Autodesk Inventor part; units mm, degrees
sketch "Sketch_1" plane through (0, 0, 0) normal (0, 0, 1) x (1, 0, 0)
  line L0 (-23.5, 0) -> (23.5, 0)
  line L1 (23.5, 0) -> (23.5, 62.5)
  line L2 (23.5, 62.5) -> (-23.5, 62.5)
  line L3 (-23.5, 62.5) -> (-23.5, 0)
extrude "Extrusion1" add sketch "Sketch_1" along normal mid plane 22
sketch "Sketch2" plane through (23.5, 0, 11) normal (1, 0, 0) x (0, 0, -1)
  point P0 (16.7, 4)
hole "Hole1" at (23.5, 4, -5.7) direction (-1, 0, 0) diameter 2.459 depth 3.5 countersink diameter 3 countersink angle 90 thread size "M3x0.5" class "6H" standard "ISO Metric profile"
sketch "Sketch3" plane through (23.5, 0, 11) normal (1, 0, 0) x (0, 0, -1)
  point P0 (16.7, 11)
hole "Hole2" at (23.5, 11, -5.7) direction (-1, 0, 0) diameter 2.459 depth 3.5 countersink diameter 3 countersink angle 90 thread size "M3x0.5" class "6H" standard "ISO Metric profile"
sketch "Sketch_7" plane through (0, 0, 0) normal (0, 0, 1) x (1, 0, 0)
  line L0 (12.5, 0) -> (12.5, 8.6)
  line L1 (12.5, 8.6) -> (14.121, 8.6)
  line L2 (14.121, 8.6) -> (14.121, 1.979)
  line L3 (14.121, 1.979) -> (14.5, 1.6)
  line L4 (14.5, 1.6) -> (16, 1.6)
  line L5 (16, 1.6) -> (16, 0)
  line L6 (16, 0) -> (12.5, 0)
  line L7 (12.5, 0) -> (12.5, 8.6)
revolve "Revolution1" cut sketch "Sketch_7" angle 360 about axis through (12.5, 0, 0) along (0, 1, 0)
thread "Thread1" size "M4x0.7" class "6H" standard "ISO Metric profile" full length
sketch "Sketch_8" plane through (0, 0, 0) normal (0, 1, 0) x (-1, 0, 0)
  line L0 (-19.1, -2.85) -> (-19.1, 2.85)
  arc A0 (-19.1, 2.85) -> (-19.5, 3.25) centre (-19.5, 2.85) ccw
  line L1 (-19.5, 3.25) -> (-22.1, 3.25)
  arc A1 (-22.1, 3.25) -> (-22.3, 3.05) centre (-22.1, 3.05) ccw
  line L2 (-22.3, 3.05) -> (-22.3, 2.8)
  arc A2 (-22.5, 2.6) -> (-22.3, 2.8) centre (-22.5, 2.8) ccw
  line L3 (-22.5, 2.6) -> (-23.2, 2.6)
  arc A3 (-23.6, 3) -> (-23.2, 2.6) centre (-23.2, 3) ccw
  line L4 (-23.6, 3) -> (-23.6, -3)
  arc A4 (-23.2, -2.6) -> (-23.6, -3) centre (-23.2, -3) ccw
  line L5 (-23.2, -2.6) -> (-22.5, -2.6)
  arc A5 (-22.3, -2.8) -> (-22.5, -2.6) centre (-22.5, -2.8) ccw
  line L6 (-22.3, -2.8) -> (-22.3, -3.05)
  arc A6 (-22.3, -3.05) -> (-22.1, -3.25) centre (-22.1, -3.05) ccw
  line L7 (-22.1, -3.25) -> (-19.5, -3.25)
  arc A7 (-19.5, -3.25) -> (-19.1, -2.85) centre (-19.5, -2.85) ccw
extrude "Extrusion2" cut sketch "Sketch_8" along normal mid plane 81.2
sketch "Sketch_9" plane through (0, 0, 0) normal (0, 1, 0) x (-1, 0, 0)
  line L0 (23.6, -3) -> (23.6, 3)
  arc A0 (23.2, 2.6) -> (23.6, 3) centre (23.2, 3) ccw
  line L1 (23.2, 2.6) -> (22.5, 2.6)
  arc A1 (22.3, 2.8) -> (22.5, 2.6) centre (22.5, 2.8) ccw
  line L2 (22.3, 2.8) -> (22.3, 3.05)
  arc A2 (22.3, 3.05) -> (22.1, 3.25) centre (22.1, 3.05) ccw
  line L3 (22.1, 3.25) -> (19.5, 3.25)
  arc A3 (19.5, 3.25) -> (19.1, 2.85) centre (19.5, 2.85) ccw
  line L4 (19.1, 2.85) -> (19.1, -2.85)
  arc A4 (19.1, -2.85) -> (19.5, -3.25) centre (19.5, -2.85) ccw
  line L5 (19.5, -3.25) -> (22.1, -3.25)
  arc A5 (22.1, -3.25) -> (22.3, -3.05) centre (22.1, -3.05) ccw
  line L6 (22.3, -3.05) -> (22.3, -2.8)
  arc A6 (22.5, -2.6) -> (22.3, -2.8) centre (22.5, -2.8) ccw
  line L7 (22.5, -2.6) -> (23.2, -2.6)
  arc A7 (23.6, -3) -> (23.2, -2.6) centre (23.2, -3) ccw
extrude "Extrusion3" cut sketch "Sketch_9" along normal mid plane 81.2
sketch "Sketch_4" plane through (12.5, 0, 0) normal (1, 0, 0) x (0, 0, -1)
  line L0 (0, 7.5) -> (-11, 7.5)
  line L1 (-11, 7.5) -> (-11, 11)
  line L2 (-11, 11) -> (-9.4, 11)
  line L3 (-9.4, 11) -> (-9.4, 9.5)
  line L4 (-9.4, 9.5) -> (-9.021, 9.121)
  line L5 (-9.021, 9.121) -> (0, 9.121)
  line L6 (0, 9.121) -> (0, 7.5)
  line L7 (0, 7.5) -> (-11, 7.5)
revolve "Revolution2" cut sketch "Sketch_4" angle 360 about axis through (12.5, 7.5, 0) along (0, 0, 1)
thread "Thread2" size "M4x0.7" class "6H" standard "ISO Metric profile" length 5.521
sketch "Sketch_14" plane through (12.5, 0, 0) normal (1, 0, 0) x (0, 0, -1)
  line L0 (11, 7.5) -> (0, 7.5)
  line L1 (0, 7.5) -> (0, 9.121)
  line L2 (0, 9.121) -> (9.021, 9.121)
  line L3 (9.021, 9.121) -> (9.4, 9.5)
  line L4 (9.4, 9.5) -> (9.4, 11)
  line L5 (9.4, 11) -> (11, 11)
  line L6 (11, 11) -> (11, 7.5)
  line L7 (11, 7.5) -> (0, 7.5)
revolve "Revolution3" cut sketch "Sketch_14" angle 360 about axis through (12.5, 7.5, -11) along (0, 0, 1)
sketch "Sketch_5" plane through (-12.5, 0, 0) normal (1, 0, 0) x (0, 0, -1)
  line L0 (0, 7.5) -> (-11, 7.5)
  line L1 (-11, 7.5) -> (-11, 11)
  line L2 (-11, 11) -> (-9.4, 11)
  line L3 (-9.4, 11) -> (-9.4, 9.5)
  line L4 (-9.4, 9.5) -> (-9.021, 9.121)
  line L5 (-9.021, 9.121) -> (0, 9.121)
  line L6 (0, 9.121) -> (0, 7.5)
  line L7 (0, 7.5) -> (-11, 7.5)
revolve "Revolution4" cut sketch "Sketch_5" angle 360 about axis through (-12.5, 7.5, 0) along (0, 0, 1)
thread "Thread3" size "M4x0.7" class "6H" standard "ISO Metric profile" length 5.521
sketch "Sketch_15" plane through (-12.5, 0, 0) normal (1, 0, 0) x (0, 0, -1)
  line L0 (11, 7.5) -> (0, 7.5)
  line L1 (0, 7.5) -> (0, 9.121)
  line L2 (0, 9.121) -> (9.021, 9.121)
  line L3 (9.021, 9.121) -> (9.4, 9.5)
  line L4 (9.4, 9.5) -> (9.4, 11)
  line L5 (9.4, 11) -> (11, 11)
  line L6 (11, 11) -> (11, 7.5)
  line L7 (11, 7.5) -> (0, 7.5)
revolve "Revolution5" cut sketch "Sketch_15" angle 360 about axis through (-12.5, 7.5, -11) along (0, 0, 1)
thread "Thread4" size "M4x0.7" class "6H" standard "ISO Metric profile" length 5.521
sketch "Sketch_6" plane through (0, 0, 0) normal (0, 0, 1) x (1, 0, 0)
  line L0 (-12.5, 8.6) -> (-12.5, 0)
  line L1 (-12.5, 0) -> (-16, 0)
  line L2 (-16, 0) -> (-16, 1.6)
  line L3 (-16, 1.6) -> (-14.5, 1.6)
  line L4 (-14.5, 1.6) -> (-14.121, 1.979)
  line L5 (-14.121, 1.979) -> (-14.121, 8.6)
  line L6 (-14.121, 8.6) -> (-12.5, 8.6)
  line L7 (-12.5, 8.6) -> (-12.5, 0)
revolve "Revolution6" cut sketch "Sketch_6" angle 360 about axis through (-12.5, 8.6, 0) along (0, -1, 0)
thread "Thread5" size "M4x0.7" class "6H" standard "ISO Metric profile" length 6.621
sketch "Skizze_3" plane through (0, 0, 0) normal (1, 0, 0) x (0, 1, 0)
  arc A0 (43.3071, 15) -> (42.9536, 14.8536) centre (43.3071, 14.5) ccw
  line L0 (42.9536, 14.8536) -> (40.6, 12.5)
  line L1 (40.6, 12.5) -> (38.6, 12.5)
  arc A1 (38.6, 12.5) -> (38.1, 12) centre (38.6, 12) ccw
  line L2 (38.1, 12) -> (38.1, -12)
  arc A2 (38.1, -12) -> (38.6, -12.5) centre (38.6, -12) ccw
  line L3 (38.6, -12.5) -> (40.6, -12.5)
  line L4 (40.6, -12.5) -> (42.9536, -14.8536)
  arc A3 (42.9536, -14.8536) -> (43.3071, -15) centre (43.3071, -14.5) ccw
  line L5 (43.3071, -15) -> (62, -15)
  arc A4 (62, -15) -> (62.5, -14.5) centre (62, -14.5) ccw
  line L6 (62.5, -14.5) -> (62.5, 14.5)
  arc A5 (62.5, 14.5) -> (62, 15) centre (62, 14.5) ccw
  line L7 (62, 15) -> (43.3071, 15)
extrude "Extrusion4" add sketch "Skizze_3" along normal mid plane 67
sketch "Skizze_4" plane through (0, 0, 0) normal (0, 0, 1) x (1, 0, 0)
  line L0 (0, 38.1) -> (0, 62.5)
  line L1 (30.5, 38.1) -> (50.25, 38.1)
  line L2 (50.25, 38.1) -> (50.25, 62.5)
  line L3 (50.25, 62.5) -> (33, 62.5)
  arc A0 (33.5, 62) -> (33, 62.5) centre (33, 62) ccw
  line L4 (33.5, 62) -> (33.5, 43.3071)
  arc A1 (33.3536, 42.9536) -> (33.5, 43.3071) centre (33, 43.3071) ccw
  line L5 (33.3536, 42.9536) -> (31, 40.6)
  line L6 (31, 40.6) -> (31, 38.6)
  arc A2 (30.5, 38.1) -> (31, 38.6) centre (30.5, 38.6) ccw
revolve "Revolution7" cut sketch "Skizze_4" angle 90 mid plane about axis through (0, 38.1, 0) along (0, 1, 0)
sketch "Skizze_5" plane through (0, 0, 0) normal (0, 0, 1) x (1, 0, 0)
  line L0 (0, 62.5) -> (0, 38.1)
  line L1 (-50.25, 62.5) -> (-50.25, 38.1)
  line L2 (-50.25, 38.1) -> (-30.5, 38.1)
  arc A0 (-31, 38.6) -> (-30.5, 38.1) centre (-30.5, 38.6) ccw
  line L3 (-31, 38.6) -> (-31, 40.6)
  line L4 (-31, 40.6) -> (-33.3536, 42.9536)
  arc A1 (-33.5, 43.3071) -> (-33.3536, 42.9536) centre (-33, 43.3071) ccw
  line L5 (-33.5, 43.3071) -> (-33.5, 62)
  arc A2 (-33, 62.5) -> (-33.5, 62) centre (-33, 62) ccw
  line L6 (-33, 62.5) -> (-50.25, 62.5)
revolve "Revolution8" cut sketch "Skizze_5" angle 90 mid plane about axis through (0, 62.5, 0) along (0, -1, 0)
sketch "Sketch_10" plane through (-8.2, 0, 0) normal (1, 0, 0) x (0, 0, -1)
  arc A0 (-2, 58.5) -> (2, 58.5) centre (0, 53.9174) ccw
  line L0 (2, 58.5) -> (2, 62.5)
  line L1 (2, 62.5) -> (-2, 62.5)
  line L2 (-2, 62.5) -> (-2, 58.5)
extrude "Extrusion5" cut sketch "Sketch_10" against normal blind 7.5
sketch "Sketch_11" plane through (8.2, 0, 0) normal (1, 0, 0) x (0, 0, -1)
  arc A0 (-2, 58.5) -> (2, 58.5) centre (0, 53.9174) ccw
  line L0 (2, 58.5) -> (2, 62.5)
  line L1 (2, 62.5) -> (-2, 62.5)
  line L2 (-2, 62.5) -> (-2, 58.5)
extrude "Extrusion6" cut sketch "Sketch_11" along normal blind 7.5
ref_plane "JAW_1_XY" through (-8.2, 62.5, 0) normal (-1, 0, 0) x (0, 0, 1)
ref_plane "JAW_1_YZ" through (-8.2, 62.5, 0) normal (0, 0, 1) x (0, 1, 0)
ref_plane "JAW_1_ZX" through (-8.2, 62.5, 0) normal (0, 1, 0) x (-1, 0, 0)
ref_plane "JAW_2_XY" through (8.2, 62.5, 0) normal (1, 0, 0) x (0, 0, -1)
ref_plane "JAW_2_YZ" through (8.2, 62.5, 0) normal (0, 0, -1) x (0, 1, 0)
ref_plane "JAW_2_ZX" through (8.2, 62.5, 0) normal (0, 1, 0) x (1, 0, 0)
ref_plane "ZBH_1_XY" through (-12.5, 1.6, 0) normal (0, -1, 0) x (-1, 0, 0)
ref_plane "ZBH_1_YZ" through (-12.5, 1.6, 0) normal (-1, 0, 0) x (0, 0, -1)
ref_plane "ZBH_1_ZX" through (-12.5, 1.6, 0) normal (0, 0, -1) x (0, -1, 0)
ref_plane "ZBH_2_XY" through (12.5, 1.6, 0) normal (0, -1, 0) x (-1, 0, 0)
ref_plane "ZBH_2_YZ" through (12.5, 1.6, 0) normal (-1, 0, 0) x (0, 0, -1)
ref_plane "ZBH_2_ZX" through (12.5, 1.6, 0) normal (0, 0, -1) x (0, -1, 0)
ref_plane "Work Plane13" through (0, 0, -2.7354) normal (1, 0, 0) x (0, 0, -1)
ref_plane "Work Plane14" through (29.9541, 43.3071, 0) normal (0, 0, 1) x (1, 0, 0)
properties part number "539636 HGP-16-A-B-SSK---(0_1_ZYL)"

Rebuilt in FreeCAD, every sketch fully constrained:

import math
import FreeCAD as App
import Part
import Sketcher
from FreeCAD import Vector
Q = App.Units.Quantity


def add_polygon(sketch, points):
    """Adds a closed chain of lines whose ends are joined by coincident constraints."""
    first, n = sketch.GeometryCount, len(points)
    for a, b in zip(points, points[1:] + points[:1]):
        sketch.addGeometry(Part.LineSegment(App.Vector(*a, 0), App.Vector(*b, 0)), False)
    for i in range(n):
        sketch.addConstraint(Sketcher.Constraint("Coincident", first + i, 2, first + (i + 1) % n, 1))

doc = App.newDocument("Part")
body = doc.addObject("PartDesign::Body", "Body")

sketch1 = body.newObject("Sketcher::SketchObject", "Sketch")
sketch1.AttachmentSupport = (doc.getObject("XY_Plane"), [""])
sketch1.MapMode = "FlatFace"
add_polygon(sketch1, [(-24, 62), (-24, 0), (24, 0), (24, 62)])
sketch1.addConstraint(Sketcher.Constraint("Vertical", 0))
sketch1.addConstraint(Sketcher.Constraint("Horizontal", 1))
sketch1.addConstraint(Sketcher.Constraint("Vertical", 2))
sketch1.addConstraint(Sketcher.Constraint("Horizontal", 3))
sketch1.addConstraint(Sketcher.Constraint("Symmetric", 0, 2, 1, 2, -1, 1))
sketch1.addConstraint(Sketcher.Constraint("DistanceX", 1, 1, 1, 2, Q("47 mm")))
sketch1.addConstraint(Sketcher.Constraint("DistanceY", 0, 2, 0, 1, Q("62.5 mm")))
pad1 = body.newObject("PartDesign::Pad", "Pad")
pad1.Profile = sketch1
pad1.Length = 22
pad1.Midplane = True

sketch2 = body.newObject("Sketcher::SketchObject", "Sketch001")
sketch2.AttachmentSupport = (doc.getObject("YZ_Plane"), [""])
sketch2.MapMode = "FlatFace"
sketch2.AttachmentOffset = App.Placement(Vector(0, 0, 23.5), App.Rotation())
sketch2.addGeometry(Part.Circle(Vector(4, -5.7, 0), Vector(0, 0, 1), 1.2), False)
sketch2.addConstraint(Sketcher.Constraint("Diameter", 0, Q("2.459 mm")))
sketch2.addConstraint(Sketcher.Constraint("DistanceX", -1, 1, 0, 3, Q("4 mm")))
sketch2.addConstraint(Sketcher.Constraint("DistanceY", 0, 3, -1, 1, Q("5.7 mm")))
doc.recompute()
hole = body.newObject("PartDesign::Hole", "Hole")
hole.Profile = sketch2
hole.ThreadType = "None"
hole.Diameter = 2.459
hole.DepthType = "Dimension"
hole.Depth = 3.5
hole.DrillPoint = "Flat"
hole.HoleCutType = "Countersink"
hole.HoleCutDiameter = 3
hole.HoleCutCountersinkAngle = 90

sketch3 = body.newObject("Sketcher::SketchObject", "Sketch002")
sketch3.AttachmentSupport = (doc.getObject("YZ_Plane"), [""])
sketch3.MapMode = "FlatFace"
sketch3.AttachmentOffset = App.Placement(Vector(0, 0, 23.5), App.Rotation())
sketch3.addGeometry(Part.Circle(Vector(11, -5.7, 0), Vector(0, 0, 1), 1.2), False)
sketch3.addConstraint(Sketcher.Constraint("Diameter", 0, Q("2.459 mm")))
sketch3.addConstraint(Sketcher.Constraint("DistanceX", -1, 1, 0, 3, Q("11 mm")))
sketch3.addConstraint(Sketcher.Constraint("DistanceY", 0, 3, -1, 1, Q("5.7 mm")))
doc.recompute()
hole2 = body.newObject("PartDesign::Hole", "Hole001")
hole2.Profile = sketch3
hole2.ThreadType = "None"
hole2.Diameter = 2.459
hole2.DepthType = "Dimension"
hole2.Depth = 3.5
hole2.DrillPoint = "Flat"
hole2.HoleCutType = "Countersink"
hole2.HoleCutDiameter = 3
hole2.HoleCutCountersinkAngle = 90

sketch4 = body.newObject("Sketcher::SketchObject", "Sketch003")
sketch4.AttachmentSupport = (doc.getObject("XY_Plane"), [""])
sketch4.MapMode = "FlatFace"
add_polygon(sketch4, [(12.5, 8.6), (12.5, 0), (16, 0), (16, 1.6), (14.5, 1.6), (14.1, 2), (14.1, 8.6)])
sketch4.addGeometry(Part.LineSegment(Vector(12.5, 0, 0), Vector(12.5, 8.6, 0)), True)
sketch4.addConstraint(Sketcher.Constraint("Vertical", 0))
sketch4.addConstraint(Sketcher.Constraint("Horizontal", 1))
sketch4.addConstraint(Sketcher.Constraint("Vertical", 2))
sketch4.addConstraint(Sketcher.Constraint("Horizontal", 3))
sketch4.addConstraint(Sketcher.Constraint("Vertical", 5))
sketch4.addConstraint(Sketcher.Constraint("Horizontal", 6))
sketch4.addConstraint(Sketcher.Constraint("Vertical", 7))
sketch4.addConstraint(Sketcher.Constraint("Coincident", 7, 1, 0, 2))
sketch4.addConstraint(Sketcher.Constraint("PointOnObject", 0, 2, -1))
sketch4.addConstraint(Sketcher.Constraint("Horizontal", 5, 2, 7, 2))
sketch4.addConstraint(Sketcher.Constraint("Angle", 4, Q("135 deg")))
sketch4.addConstraint(Sketcher.Constraint("DistanceX", 1, 1, 1, 2, Q("3.5 mm")))
sketch4.addConstraint(Sketcher.Constraint("DistanceX", 3, 2, 3, 1, Q("1.5 mm")))
sketch4.addConstraint(Sketcher.Constraint("DistanceY", 0, 2, 0, 1, Q("8.6 mm")))
sketch4.addConstraint(Sketcher.Constraint("DistanceY", 2, 1, 2, 2, Q("1.6 mm")))
sketch4.addConstraint(Sketcher.Constraint("DistanceX", -1, 1, 1, 2, Q("16 mm")))
sketch4.addConstraint(Sketcher.Constraint("DistanceX", 6, 2, 6, 1, Q("1.621 mm")))
groove = body.newObject("PartDesign::Groove", "Groove")
groove.Profile = sketch4
groove.ReferenceAxis = (sketch4, ["Axis0"])
groove.Angle = 360

sketch5 = body.newObject("Sketcher::SketchObject", "Sketch004")
sketch5.AttachmentSupport = (doc.getObject("XZ_Plane"), [""])
sketch5.MapMode = "FlatFace"
sketch5.addGeometry(Part.ArcOfCircle(Part.Circle(Vector(19.5, -2.85, 0), Vector(0, 0, 1), 0.4), math.radians(180), math.radians(270)), False)
sketch5.addGeometry(Part.LineSegment(Vector(19.1, -2.85, 0), Vector(19.1, 2.85, 0)), False)
sketch5.addGeometry(Part.ArcOfCircle(Part.Circle(Vector(19.5, 2.85, 0), Vector(0, 0, 1), 0.4), math.radians(90), math.radians(180)), False)
sketch5.addGeometry(Part.LineSegment(Vector(19.5, 3.25, 0), Vector(22.1, 3.25, 0)), False)
sketch5.addGeometry(Part.ArcOfCircle(Part.Circle(Vector(22.1, 3.05, 0), Vector(0, 0, 1), 0.2), math.radians(0), math.radians(90)), False)
sketch5.addGeometry(Part.LineSegment(Vector(22.3, 3.05, 0), Vector(22.3, 2.8, 0)), False)
sketch5.addGeometry(Part.ArcOfCircle(Part.Circle(Vector(22.5, 2.8, 0), Vector(0, 0, 1), 0.2), math.radians(180), math.radians(270)), False)
sketch5.addGeometry(Part.LineSegment(Vector(22.5, 2.6, 0), Vector(23.2, 2.6, 0)), False)
sketch5.addGeometry(Part.ArcOfCircle(Part.Circle(Vector(23.2, 3, 0), Vector(0, 0, 1), 0.4), math.radians(-90), math.radians(0)), False)
sketch5.addGeometry(Part.LineSegment(Vector(23.6, 3, 0), Vector(23.6, -3, 0)), False)
sketch5.addGeometry(Part.ArcOfCircle(Part.Circle(Vector(23.2, -3, 0), Vector(0, 0, 1), 0.4), math.radians(0), math.radians(90)), False)
sketch5.addGeometry(Part.LineSegment(Vector(23.2, -2.6, 0), Vector(22.5, -2.6, 0)), False)
sketch5.addGeometry(Part.ArcOfCircle(Part.Circle(Vector(22.5, -2.8, 0), Vector(0, 0, 1), 0.2), math.radians(90), math.radians(180)), False)
sketch5.addGeometry(Part.LineSegment(Vector(22.3, -2.8, 0), Vector(22.3, -3.05, 0)), False)
sketch5.addGeometry(Part.ArcOfCircle(Part.Circle(Vector(22.1, -3.05, 0), Vector(0, 0, 1), 0.2), math.radians(-90), math.radians(0)), False)
sketch5.addGeometry(Part.LineSegment(Vector(22.1, -3.25, 0), Vector(19.5, -3.25, 0)), False)
sketch5.addConstraint(Sketcher.Constraint("Tangent", 0, 1, 1, 1))
sketch5.addConstraint(Sketcher.Constraint("Tangent", 1, 2, 2, 2))
sketch5.addConstraint(Sketcher.Constraint("Tangent", 2, 1, 3, 1))
sketch5.addConstraint(Sketcher.Constraint("Tangent", 3, 2, 4, 2))
sketch5.addConstraint(Sketcher.Constraint("Tangent", 4, 1, 5, 1))
sketch5.addConstraint(Sketcher.Constraint("Tangent", 5, 2, 6, 1))
sketch5.addConstraint(Sketcher.Constraint("Tangent", 6, 2, 7, 1))
sketch5.addConstraint(Sketcher.Constraint("Tangent", 7, 2, 8, 1))
sketch5.addConstraint(Sketcher.Constraint("Tangent", 8, 2, 9, 1))
sketch5.addConstraint(Sketcher.Constraint("Tangent", 9, 2, 10, 1))
sketch5.addConstraint(Sketcher.Constraint("Tangent", 10, 2, 11, 1))
sketch5.addConstraint(Sketcher.Constraint("Tangent", 11, 2, 12, 1))
sketch5.addConstraint(Sketcher.Constraint("Tangent", 12, 2, 13, 1))
sketch5.addConstraint(Sketcher.Constraint("Tangent", 13, 2, 14, 2))
sketch5.addConstraint(Sketcher.Constraint("Tangent", 14, 1, 15, 1))
sketch5.addConstraint(Sketcher.Constraint("Tangent", 15, 2, 0, 2))
sketch5.addConstraint(Sketcher.Constraint("Vertical", 1))
sketch5.addConstraint(Sketcher.Constraint("Horizontal", 3))
sketch5.addConstraint(Sketcher.Constraint("Vertical", 5))
sketch5.addConstraint(Sketcher.Constraint("Horizontal", 7))
sketch5.addConstraint(Sketcher.Constraint("Vertical", 9))
sketch5.addConstraint(Sketcher.Constraint("Horizontal", 11))
sketch5.addConstraint(Sketcher.Constraint("Vertical", 13))
sketch5.addConstraint(Sketcher.Constraint("Horizontal", 15))
sketch5.addConstraint(Sketcher.Constraint("Equal", 0, 2))
sketch5.addConstraint(Sketcher.Constraint("Equal", 4, 6))
sketch5.addConstraint(Sketcher.Constraint("Equal", 2, 8))
sketch5.addConstraint(Sketcher.Constraint("Equal", 8, 10))
sketch5.addConstraint(Sketcher.Constraint("Equal", 6, 12))
sketch5.addConstraint(Sketcher.Constraint("Equal", 12, 14))
sketch5.addConstraint(Sketcher.Constraint("Symmetric", 6, 3, 12, 3, -1))
sketch5.addConstraint(Sketcher.Constraint("Equal", 5, 13))
sketch5.addConstraint(Sketcher.Constraint("Radius", 0, Q("0.4 mm")))
sketch5.addConstraint(Sketcher.Constraint("Radius", 4, Q("0.2 mm")))
sketch5.addConstraint(Sketcher.Constraint("DistanceY", 9, 2, 9, 1, Q("6 mm")))
sketch5.addConstraint(Sketcher.Constraint("DistanceX", 3, 1, 3, 2, Q("2.6 mm")))
sketch5.addConstraint(Sketcher.Constraint("DistanceX", 7, 1, 7, 2, Q("0.7 mm")))
sketch5.addConstraint(Sketcher.Constraint("DistanceY", 1, 1, 1, 2, Q("5.7 mm")))
sketch5.addConstraint(Sketcher.Constraint("DistanceX", -1, 1, 0, 3, Q("19.5 mm")))
pocket1 = body.newObject("PartDesign::Pocket", "Pocket")
pocket1.Profile = sketch5
pocket1.Length = 81.2
pocket1.Midplane = True

sketch6 = body.newObject("Sketcher::SketchObject", "Sketch005")
sketch6.AttachmentSupport = (doc.getObject("XZ_Plane"), [""])
sketch6.MapMode = "FlatFace"
sketch6.addGeometry(Part.ArcOfCircle(Part.Circle(Vector(-23.2, -3, 0), Vector(0, 0, 1), 0.4), math.radians(90), math.radians(180)), False)
sketch6.addGeometry(Part.LineSegment(Vector(-23.6, -3, 0), Vector(-23.6, 3, 0)), False)
sketch6.addGeometry(Part.ArcOfCircle(Part.Circle(Vector(-23.2, 3, 0), Vector(0, 0, 1), 0.4), math.radians(180), math.radians(270)), False)
sketch6.addGeometry(Part.LineSegment(Vector(-23.2, 2.6, 0), Vector(-22.5, 2.6, 0)), False)
sketch6.addGeometry(Part.ArcOfCircle(Part.Circle(Vector(-22.5, 2.8, 0), Vector(0, 0, 1), 0.2), math.radians(-90), math.radians(0)), False)
sketch6.addGeometry(Part.LineSegment(Vector(-22.3, 2.8, 0), Vector(-22.3, 3.05, 0)), False)
sketch6.addGeometry(Part.ArcOfCircle(Part.Circle(Vector(-22.1, 3.05, 0), Vector(0, 0, 1), 0.2), math.radians(90), math.radians(180)), False)
sketch6.addGeometry(Part.LineSegment(Vector(-22.1, 3.25, 0), Vector(-19.5, 3.25, 0)), False)
sketch6.addGeometry(Part.ArcOfCircle(Part.Circle(Vector(-19.5, 2.85, 0), Vector(0, 0, 1), 0.4), math.radians(0), math.radians(90)), False)
sketch6.addGeometry(Part.LineSegment(Vector(-19.1, 2.85, 0), Vector(-19.1, -2.85, 0)), False)
sketch6.addGeometry(Part.ArcOfCircle(Part.Circle(Vector(-19.5, -2.85, 0), Vector(0, 0, 1), 0.4), math.radians(-90), math.radians(0)), False)
sketch6.addGeometry(Part.LineSegment(Vector(-19.5, -3.25, 0), Vector(-22.1, -3.25, 0)), False)
sketch6.addGeometry(Part.ArcOfCircle(Part.Circle(Vector(-22.1, -3.05, 0), Vector(0, 0, 1), 0.2), math.radians(180), math.radians(270)), False)
sketch6.addGeometry(Part.LineSegment(Vector(-22.3, -3.05, 0), Vector(-22.3, -2.8, 0)), False)
sketch6.addGeometry(Part.ArcOfCircle(Part.Circle(Vector(-22.5, -2.8, 0), Vector(0, 0, 1), 0.2), math.radians(0), math.radians(90)), False)
sketch6.addGeometry(Part.LineSegment(Vector(-22.5, -2.6, 0), Vector(-23.2, -2.6, 0)), False)
sketch6.addConstraint(Sketcher.Constraint("Tangent", 0, 2, 1, 1))
sketch6.addConstraint(Sketcher.Constraint("Tangent", 1, 2, 2, 1))
sketch6.addConstraint(Sketcher.Constraint("Tangent", 2, 2, 3, 1))
sketch6.addConstraint(Sketcher.Constraint("Tangent", 3, 2, 4, 1))
sketch6.addConstraint(Sketcher.Constraint("Tangent", 4, 2, 5, 1))
sketch6.addConstraint(Sketcher.Constraint("Tangent", 5, 2, 6, 2))
sketch6.addConstraint(Sketcher.Constraint("Tangent", 6, 1, 7, 1))
sketch6.addConstraint(Sketcher.Constraint("Tangent", 7, 2, 8, 2))
sketch6.addConstraint(Sketcher.Constraint("Tangent", 8, 1, 9, 1))
sketch6.addConstraint(Sketcher.Constraint("Tangent", 9, 2, 10, 2))
sketch6.addConstraint(Sketcher.Constraint("Tangent", 10, 1, 11, 1))
sketch6.addConstraint(Sketcher.Constraint("Tangent", 11, 2, 12, 2))
sketch6.addConstraint(Sketcher.Constraint("Tangent", 12, 1, 13, 1))
sketch6.addConstraint(Sketcher.Constraint("Tangent", 13, 2, 14, 1))
sketch6.addConstraint(Sketcher.Constraint("Tangent", 14, 2, 15, 1))
sketch6.addConstraint(Sketcher.Constraint("Tangent", 15, 2, 0, 1))
sketch6.addConstraint(Sketcher.Constraint("Vertical", 1))
sketch6.addConstraint(Sketcher.Constraint("Horizontal", 3))
sketch6.addConstraint(Sketcher.Constraint("Vertical", 5))
sketch6.addConstraint(Sketcher.Constraint("Horizontal", 7))
sketch6.addConstraint(Sketcher.Constraint("Vertical", 9))
sketch6.addConstraint(Sketcher.Constraint("Horizontal", 11))
sketch6.addConstraint(Sketcher.Constraint("Vertical", 13))
sketch6.addConstraint(Sketcher.Constraint("Horizontal", 15))
sketch6.addConstraint(Sketcher.Constraint("Equal", 0, 2))
sketch6.addConstraint(Sketcher.Constraint("Equal", 4, 6))
sketch6.addConstraint(Sketcher.Constraint("Equal", 2, 8))
sketch6.addConstraint(Sketcher.Constraint("Equal", 8, 10))
sketch6.addConstraint(Sketcher.Constraint("Equal", 6, 12))
sketch6.addConstraint(Sketcher.Constraint("Equal", 12, 14))
sketch6.addConstraint(Sketcher.Constraint("Symmetric", 6, 3, 12, 3, -1))
sketch6.addConstraint(Sketcher.Constraint("Equal", 5, 13))
sketch6.addConstraint(Sketcher.Constraint("Radius", 0, Q("0.4 mm")))
sketch6.addConstraint(Sketcher.Constraint("Radius", 4, Q("0.2 mm")))
sketch6.addConstraint(Sketcher.Constraint("DistanceY", 1, 1, 1, 2, Q("6 mm")))
sketch6.addConstraint(Sketcher.Constraint("DistanceX", 3, 1, 3, 2, Q("0.7 mm")))
sketch6.addConstraint(Sketcher.Constraint("DistanceX", 7, 1, 7, 2, Q("2.6 mm")))
sketch6.addConstraint(Sketcher.Constraint("DistanceY", 9, 2, 9, 1, Q("5.7 mm")))
sketch6.addConstraint(Sketcher.Constraint("DistanceX", 0, 3, -1, 1, Q("23.2 mm")))
pocket2 = body.newObject("PartDesign::Pocket", "Pocket001")
pocket2.Profile = sketch6
pocket2.Length = 81.2
pocket2.Midplane = True

sketch7 = body.newObject("Sketcher::SketchObject", "Sketch006")
sketch7.AttachmentSupport = (doc.getObject("YZ_Plane"), [""])
sketch7.MapMode = "FlatFace"
sketch7.AttachmentOffset = App.Placement(Vector(0, 0, 12.5), App.Rotation())
add_polygon(sketch7, [(7.5, 11), (7.5, 0), (9.1, 0), (9.1, 9), (9.5, 9.4), (11, 9.4), (11, 11)])
sketch7.addGeometry(Part.LineSegment(Vector(7.5, 0, 0), Vector(7.5, 11, 0)), True)
sketch7.addConstraint(Sketcher.Constraint("Vertical", 0))
sketch7.addConstraint(Sketcher.Constraint("Horizontal", 1))
sketch7.addConstraint(Sketcher.Constraint("Vertical", 2))
sketch7.addConstraint(Sketcher.Constraint("Horizontal", 4))
sketch7.addConstraint(Sketcher.Constraint("Vertical", 5))
sketch7.addConstraint(Sketcher.Constraint("Horizontal", 6))
sketch7.addConstraint(Sketcher.Constraint("Vertical", 7))
sketch7.addConstraint(Sketcher.Constraint("Coincident", 7, 1, 0, 2))
sketch7.addConstraint(Sketcher.Constraint("PointOnObject", 0, 2, -1))
sketch7.addConstraint(Sketcher.Constraint("Horizontal", 5, 2, 7, 2))
sketch7.addConstraint(Sketcher.Constraint("DistanceY", 0, 2, 0, 1, Q("11 mm")))
sketch7.addConstraint(Sketcher.Constraint("Angle", 3, Q("45 deg")))
sketch7.addConstraint(Sketcher.Constraint("DistanceX", 4, 1, 4, 2, Q("1.5 mm")))
sketch7.addConstraint(Sketcher.Constraint("DistanceX", 6, 2, 6, 1, Q("3.5 mm")))
sketch7.addConstraint(Sketcher.Constraint("DistanceY", 5, 1, 5, 2, Q("1.6 mm")))
sketch7.addConstraint(Sketcher.Constraint("DistanceX", -1, 1, 4, 2, Q("11 mm")))
sketch7.addConstraint(Sketcher.Constraint("DistanceX", 1, 1, 1, 2, Q("1.621 mm")))
groove2 = body.newObject("PartDesign::Groove", "Groove001")
groove2.Profile = sketch7
groove2.ReferenceAxis = (sketch7, ["Axis0"])
groove2.Angle = 360

sketch8 = body.newObject("Sketcher::SketchObject", "Sketch007")
sketch8.AttachmentSupport = (doc.getObject("YZ_Plane"), [""])
sketch8.MapMode = "FlatFace"
sketch8.AttachmentOffset = App.Placement(Vector(0, 0, 12.5), App.Rotation())
add_polygon(sketch8, [(7.5, 0), (7.5, -11), (11, -11), (11, -9.4), (9.5, -9.4), (9.1, -9), (9.1, 0)])
sketch8.addGeometry(Part.LineSegment(Vector(7.5, -11, 0), Vector(7.5, 0, 0)), True)
sketch8.addConstraint(Sketcher.Constraint("Vertical", 0))
sketch8.addConstraint(Sketcher.Constraint("Horizontal", 1))
sketch8.addConstraint(Sketcher.Constraint("Vertical", 2))
sketch8.addConstraint(Sketcher.Constraint("Horizontal", 3))
sketch8.addConstraint(Sketcher.Constraint("Vertical", 5))
sketch8.addConstraint(Sketcher.Constraint("Horizontal", 6))
sketch8.addConstraint(Sketcher.Constraint("Vertical", 7))
sketch8.addConstraint(Sketcher.Constraint("Coincident", 7, 1, 0, 2))
sketch8.addConstraint(Sketcher.Constraint("PointOnObject", 5, 2, -1))
sketch8.addConstraint(Sketcher.Constraint("PointOnObject", 7, 2, -1))
sketch8.addConstraint(Sketcher.Constraint("DistanceY", 0, 2, 0, 1, Q("11 mm")))
sketch8.addConstraint(Sketcher.Constraint("Angle", 4, Q("135 deg")))
sketch8.addConstraint(Sketcher.Constraint("DistanceX", 1, 1, 1, 2, Q("3.5 mm")))
sketch8.addConstraint(Sketcher.Constraint("DistanceX", 3, 2, 3, 1, Q("1.5 mm")))
sketch8.addConstraint(Sketcher.Constraint("DistanceY", 2, 1, 2, 2, Q("1.6 mm")))
sketch8.addConstraint(Sketcher.Constraint("DistanceX", -1, 1, 1, 2, Q("11 mm")))
sketch8.addConstraint(Sketcher.Constraint("DistanceX", 6, 2, 6, 1, Q("1.621 mm")))
groove3 = body.newObject("PartDesign::Groove", "Groove002")
groove3.Profile = sketch8
groove3.ReferenceAxis = (sketch8, ["Axis0"])
groove3.Angle = 360

sketch9 = body.newObject("Sketcher::SketchObject", "Sketch008")
sketch9.AttachmentSupport = (doc.getObject("YZ_Plane"), [""])
sketch9.MapMode = "FlatFace"
sketch9.AttachmentOffset = App.Placement(Vector(0, 0, -12.5), App.Rotation())
add_polygon(sketch9, [(7.5, 11), (7.5, 0), (9.1, 0), (9.1, 9), (9.5, 9.4), (11, 9.4), (11, 11)])
sketch9.addGeometry(Part.LineSegment(Vector(7.5, 0, 0), Vector(7.5, 11, 0)), True)
sketch9.addConstraint(Sketcher.Constraint("Vertical", 0))
sketch9.addConstraint(Sketcher.Constraint("Horizontal", 1))
sketch9.addConstraint(Sketcher.Constraint("Vertical", 2))
sketch9.addConstraint(Sketcher.Constraint("Horizontal", 4))
sketch9.addConstraint(Sketcher.Constraint("Vertical", 5))
sketch9.addConstraint(Sketcher.Constraint("Horizontal", 6))
sketch9.addConstraint(Sketcher.Constraint("Vertical", 7))
sketch9.addConstraint(Sketcher.Constraint("Coincident", 7, 1, 0, 2))
sketch9.addConstraint(Sketcher.Constraint("PointOnObject", 0, 2, -1))
sketch9.addConstraint(Sketcher.Constraint("Horizontal", 5, 2, 7, 2))
sketch9.addConstraint(Sketcher.Constraint("DistanceY", 0, 2, 0, 1, Q("11 mm")))
sketch9.addConstraint(Sketcher.Constraint("Angle", 3, Q("45 deg")))
sketch9.addConstraint(Sketcher.Constraint("DistanceX", 4, 1, 4, 2, Q("1.5 mm")))
sketch9.addConstraint(Sketcher.Constraint("DistanceX", 6, 2, 6, 1, Q("3.5 mm")))
sketch9.addConstraint(Sketcher.Constraint("DistanceY", 5, 1, 5, 2, Q("1.6 mm")))
sketch9.addConstraint(Sketcher.Constraint("DistanceX", -1, 1, 4, 2, Q("11 mm")))
sketch9.addConstraint(Sketcher.Constraint("DistanceX", 1, 1, 1, 2, Q("1.621 mm")))
groove4 = body.newObject("PartDesign::Groove", "Groove003")
groove4.Profile = sketch9
groove4.ReferenceAxis = (sketch9, ["Axis0"])
groove4.Angle = 360

sketch10 = body.newObject("Sketcher::SketchObject", "Sketch009")
sketch10.AttachmentSupport = (doc.getObject("YZ_Plane"), [""])
sketch10.MapMode = "FlatFace"
sketch10.AttachmentOffset = App.Placement(Vector(0, 0, -12.5), App.Rotation())
add_polygon(sketch10, [(7.5, 0), (7.5, -11), (11, -11), (11, -9.4), (9.5, -9.4), (9.1, -9), (9.1, 0)])
sketch10.addGeometry(Part.LineSegment(Vector(7.5, -11, 0), Vector(7.5, 0, 0)), True)
sketch10.addConstraint(Sketcher.Constraint("Vertical", 0))
sketch10.addConstraint(Sketcher.Constraint("Horizontal", 1))
sketch10.addConstraint(Sketcher.Constraint("Vertical", 2))
sketch10.addConstraint(Sketcher.Constraint("Horizontal", 3))
sketch10.addConstraint(Sketcher.Constraint("Vertical", 5))
sketch10.addConstraint(Sketcher.Constraint("Horizontal", 6))
sketch10.addConstraint(Sketcher.Constraint("Vertical", 7))
sketch10.addConstraint(Sketcher.Constraint("Coincident", 7, 1, 0, 2))
sketch10.addConstraint(Sketcher.Constraint("PointOnObject", 5, 2, -1))
sketch10.addConstraint(Sketcher.Constraint("PointOnObject", 7, 2, -1))
sketch10.addConstraint(Sketcher.Constraint("DistanceY", 0, 2, 0, 1, Q("11 mm")))
sketch10.addConstraint(Sketcher.Constraint("Angle", 4, Q("135 deg")))
sketch10.addConstraint(Sketcher.Constraint("DistanceX", 1, 1, 1, 2, Q("3.5 mm")))
sketch10.addConstraint(Sketcher.Constraint("DistanceX", 3, 2, 3, 1, Q("1.5 mm")))
sketch10.addConstraint(Sketcher.Constraint("DistanceY", 2, 1, 2, 2, Q("1.6 mm")))
sketch10.addConstraint(Sketcher.Constraint("DistanceX", -1, 1, 1, 2, Q("11 mm")))
sketch10.addConstraint(Sketcher.Constraint("DistanceX", 6, 2, 6, 1, Q("1.621 mm")))
groove5 = body.newObject("PartDesign::Groove", "Groove004")
groove5.Profile = sketch10
groove5.ReferenceAxis = (sketch10, ["Axis0"])
groove5.Angle = 360

sketch11 = body.newObject("Sketcher::SketchObject", "Sketch010")
sketch11.AttachmentSupport = (doc.getObject("XY_Plane"), [""])
sketch11.MapMode = "FlatFace"
add_polygon(sketch11, [(-12.5, 0), (-12.5, 8.6), (-14.1, 8.6), (-14.1, 2), (-14.5, 1.6), (-16, 1.6), (-16, 0)])
sketch11.addGeometry(Part.LineSegment(Vector(-12.5, 8.6, 0), Vector(-12.5, 0, 0)), True)
sketch11.addConstraint(Sketcher.Constraint("Vertical", 0))
sketch11.addConstraint(Sketcher.Constraint("Horizontal", 1))
sketch11.addConstraint(Sketcher.Constraint("Vertical", 2))
sketch11.addConstraint(Sketcher.Constraint("Horizontal", 4))
sketch11.addConstraint(Sketcher.Constraint("Vertical", 5))
sketch11.addConstraint(Sketcher.Constraint("Horizontal", 6))
sketch11.addConstraint(Sketcher.Constraint("Vertical", 7))
sketch11.addConstraint(Sketcher.Constraint("Coincident", 7, 1, 0, 2))
sketch11.addConstraint(Sketcher.Constraint("PointOnObject", 5, 2, -1))
sketch11.addConstraint(Sketcher.Constraint("PointOnObject", 7, 2, -1))
sketch11.addConstraint(Sketcher.Constraint("Angle", 3, Q("-135 deg")))
sketch11.addConstraint(Sketcher.Constraint("DistanceX", 4, 2, 4, 1, Q("1.5 mm")))
sketch11.addConstraint(Sketcher.Constraint("DistanceX", 6, 1, 6, 2, Q("3.5 mm")))
sketch11.addConstraint(Sketcher.Constraint("DistanceY", 0, 1, 0, 2, Q("8.6 mm")))
sketch11.addConstraint(Sketcher.Constraint("DistanceY", 5, 2, 5, 1, Q("1.6 mm")))
sketch11.addConstraint(Sketcher.Constraint("DistanceX", 4, 2, -1, 1, Q("16 mm")))
sketch11.addConstraint(Sketcher.Constraint("DistanceX", 1, 2, 1, 1, Q("1.621 mm")))
groove6 = body.newObject("PartDesign::Groove", "Groove005")
groove6.Profile = sketch11
groove6.ReferenceAxis = (sketch11, ["Axis0"])
groove6.Angle = 360

sketch12 = body.newObject("Sketcher::SketchObject", "Sketch011")
sketch12.AttachmentSupport = (doc.getObject("YZ_Plane"), [""])
sketch12.MapMode = "FlatFace"
sketch12.addGeometry(Part.LineSegment(Vector(62, 15, 0), Vector(43.31, 15, 0)), False)
sketch12.addGeometry(Part.ArcOfCircle(Part.Circle(Vector(43.31, 14.5, 0), Vector(0, 0, 1), 0.5), math.radians(90), math.radians(135)), False)
sketch12.addGeometry(Part.LineSegment(Vector(42.95, 14.85, 0), Vector(40.6, 12.5, 0)), False)
sketch12.addGeometry(Part.LineSegment(Vector(40.6, 12.5, 0), Vector(38.6, 12.5, 0)), False)
sketch12.addGeometry(Part.ArcOfCircle(Part.Circle(Vector(38.6, 12, 0), Vector(0, 0, 1), 0.5), math.radians(90), math.radians(180)), False)
sketch12.addGeometry(Part.LineSegment(Vector(38.1, 12, 0), Vector(38.1, -12, 0)), False)
sketch12.addGeometry(Part.ArcOfCircle(Part.Circle(Vector(38.6, -12, 0), Vector(0, 0, 1), 0.5), math.radians(180), math.radians(270)), False)
sketch12.addGeometry(Part.LineSegment(Vector(38.6, -12.5, 0), Vector(40.6, -12.5, 0)), False)
sketch12.addGeometry(Part.LineSegment(Vector(40.6, -12.5, 0), Vector(42.95, -14.85, 0)), False)
sketch12.addGeometry(Part.ArcOfCircle(Part.Circle(Vector(43.31, -14.5, 0), Vector(0, 0, 1), 0.5), math.radians(-135), math.radians(-90)), False)
sketch12.addGeometry(Part.LineSegment(Vector(43.31, -15, 0), Vector(62, -15, 0)), False)
sketch12.addGeometry(Part.ArcOfCircle(Part.Circle(Vector(62, -14.5, 0), Vector(0, 0, 1), 0.5), math.radians(-90), math.radians(0)), False)
sketch12.addGeometry(Part.LineSegment(Vector(62.5, -14.5, 0), Vector(62.5, 14.5, 0)), False)
sketch12.addGeometry(Part.ArcOfCircle(Part.Circle(Vector(62, 14.5, 0), Vector(0, 0, 1), 0.5), math.radians(0), math.radians(90)), False)
sketch12.addConstraint(Sketcher.Constraint("Tangent", 0, 2, 1, 1))
sketch12.addConstraint(Sketcher.Constraint("Tangent", 1, 2, 2, 1))
sketch12.addConstraint(Sketcher.Constraint("Coincident", 2, 2, 3, 1))
sketch12.addConstraint(Sketcher.Constraint("Tangent", 3, 2, 4, 1))
sketch12.addConstraint(Sketcher.Constraint("Tangent", 4, 2, 5, 1))
sketch12.addConstraint(Sketcher.Constraint("Tangent", 5, 2, 6, 1))
sketch12.addConstraint(Sketcher.Constraint("Tangent", 6, 2, 7, 1))
sketch12.addConstraint(Sketcher.Constraint("Coincident", 7, 2, 8, 1))
sketch12.addConstraint(Sketcher.Constraint("Tangent", 8, 2, 9, 1))
sketch12.addConstraint(Sketcher.Constraint("Tangent", 9, 2, 10, 1))
sketch12.addConstraint(Sketcher.Constraint("Tangent", 10, 2, 11, 1))
sketch12.addConstraint(Sketcher.Constraint("Tangent", 11, 2, 12, 1))
sketch12.addConstraint(Sketcher.Constraint("Tangent", 12, 2, 13, 1))
sketch12.addConstraint(Sketcher.Constraint("Tangent", 13, 2, 0, 1))
sketch12.addConstraint(Sketcher.Constraint("Horizontal", 0))
sketch12.addConstraint(Sketcher.Constraint("Horizontal", 3))
sketch12.addConstraint(Sketcher.Constraint("Vertical", 5))
sketch12.addConstraint(Sketcher.Constraint("Horizontal", 7))
sketch12.addConstraint(Sketcher.Constraint("Horizontal", 10))
sketch12.addConstraint(Sketcher.Constraint("Vertical", 12))
sketch12.addConstraint(Sketcher.Constraint("Equal", 1, 4))
sketch12.addConstraint(Sketcher.Constraint("Equal", 4, 6))
sketch12.addConstraint(Sketcher.Constraint("Equal", 6, 9))
sketch12.addConstraint(Sketcher.Constraint("Equal", 9, 11))
sketch12.addConstraint(Sketcher.Constraint("Equal", 11, 13))
sketch12.addConstraint(Sketcher.Constraint("Symmetric", 1, 3, 9, 3, -1))
sketch12.addConstraint(Sketcher.Constraint("Symmetric", 2, 2, 7, 2, -1))
sketch12.addConstraint(Sketcher.Constraint("Perpendicular", 2, 8))
sketch12.addConstraint(Sketcher.Constraint("Radius", 1, Q("0.5 mm")))
sketch12.addConstraint(Sketcher.Constraint("DistanceX", 3, 2, 3, 1, Q("2 mm")))
sketch12.addConstraint(Sketcher.Constraint("DistanceY", 5, 2, 5, 1, Q("24 mm")))
sketch12.addConstraint(Sketcher.Constraint("DistanceY", 12, 1, 12, 2, Q("29 mm")))
sketch12.addConstraint(Sketcher.Constraint("DistanceX", -1, 1, 11, 3, Q("62 mm")))
sketch12.addConstraint(Sketcher.Constraint("DistanceX", -1, 1, 4, 3, Q("38.6 mm")))
pad2 = body.newObject("PartDesign::Pad", "Pad001")
pad2.Profile = sketch12
pad2.Length = 67
pad2.Midplane = True

sketch13 = body.newObject("Sketcher::SketchObject", "Sketch012")
sketch13.AttachmentSupport = (doc.getObject("XY_Plane"), [""])
sketch13.MapMode = "FlatFace"
sketch13.addGeometry(Part.ArcOfCircle(Part.Circle(Vector(30.5, 38.6, 0), Vector(0, 0, 1), 0.5), math.radians(-90), math.radians(0)), False)
sketch13.addGeometry(Part.LineSegment(Vector(30.5, 38.1, 0), Vector(50.25, 38.1, 0)), False)
sketch13.addGeometry(Part.LineSegment(Vector(50.25, 38.1, 0), Vector(50.25, 62.5, 0)), False)
sketch13.addGeometry(Part.LineSegment(Vector(50.25, 62.5, 0), Vector(33, 62.5, 0)), False)
sketch13.addGeometry(Part.ArcOfCircle(Part.Circle(Vector(33, 62, 0), Vector(0, 0, 1), 0.5), math.radians(0), math.radians(90)), False)
sketch13.addGeometry(Part.LineSegment(Vector(33.5, 62, 0), Vector(33.5, 43.31, 0)), False)
sketch13.addGeometry(Part.ArcOfCircle(Part.Circle(Vector(33, 43.31, 0), Vector(0, 0, 1), 0.5), math.radians(-45), math.radians(0)), False)
sketch13.addGeometry(Part.LineSegment(Vector(33.35, 42.95, 0), Vector(31, 40.6, 0)), False)
sketch13.addGeometry(Part.LineSegment(Vector(31, 40.6, 0), Vector(31, 38.6, 0)), False)
sketch13.addConstraint(Sketcher.Constraint("Tangent", 0, 1, 1, 1))
sketch13.addConstraint(Sketcher.Constraint("Coincident", 1, 2, 2, 1))
sketch13.addConstraint(Sketcher.Constraint("Coincident", 2, 2, 3, 1))
sketch13.addConstraint(Sketcher.Constraint("Tangent", 3, 2, 4, 2))
sketch13.addConstraint(Sketcher.Constraint("Tangent", 4, 1, 5, 1))
sketch13.addConstraint(Sketcher.Constraint("Tangent", 5, 2, 6, 2))
sketch13.addConstraint(Sketcher.Constraint("Tangent", 6, 1, 7, 1))
sketch13.addConstraint(Sketcher.Constraint("Coincident", 7, 2, 8, 1))
sketch13.addConstraint(Sketcher.Constraint("Tangent", 8, 2, 0, 2))
sketch13.addConstraint(Sketcher.Constraint("Horizontal", 1))
sketch13.addConstraint(Sketcher.Constraint("Vertical", 2))
sketch13.addConstraint(Sketcher.Constraint("Horizontal", 3))
sketch13.addConstraint(Sketcher.Constraint("Vertical", 5))
sketch13.addConstraint(Sketcher.Constraint("Vertical", 8))
sketch13.addConstraint(Sketcher.Constraint("Equal", 0, 4))
sketch13.addConstraint(Sketcher.Constraint("Equal", 4, 6))
sketch13.addConstraint(Sketcher.Constraint("Radius", 0, Q("0.5 mm")))
sketch13.addConstraint(Sketcher.Constraint("DistanceY", 8, 2, 8, 1, Q("2 mm")))
sketch13.addConstraint(Sketcher.Constraint("Angle", 7, Q("-135 deg")))
sketch13.addConstraint(Sketcher.Constraint("DistanceY", 2, 1, 2, 2, Q("24.4 mm")))
sketch13.addConstraint(Sketcher.Constraint("DistanceX", -1, 1, 4, 3, Q("33 mm")))
sketch13.addConstraint(Sketcher.Constraint("DistanceY", -1, 1, 4, 3, Q("62 mm")))
sketch13.addConstraint(Sketcher.Constraint("DistanceX", -1, 1, 7, 2, Q("31 mm")))
sketch13.addConstraint(Sketcher.Constraint("DistanceX", 1, 1, 1, 2, Q("19.75 mm")))
groove7 = body.newObject("PartDesign::Groove", "Groove006")
groove7.Profile = sketch13
groove7.ReferenceAxis = (sketch13, ["V_Axis"])
groove7.Angle = 90
groove7.Midplane = True

sketch14 = body.newObject("Sketcher::SketchObject", "Sketch013")
sketch14.AttachmentSupport = (doc.getObject("XY_Plane"), [""])
sketch14.MapMode = "FlatFace"
sketch14.addGeometry(Part.LineSegment(Vector(-33, 62.5, 0), Vector(-50.25, 62.5, 0)), False)
sketch14.addGeometry(Part.LineSegment(Vector(-50.25, 62.5, 0), Vector(-50.25, 38.1, 0)), False)
sketch14.addGeometry(Part.LineSegment(Vector(-50.25, 38.1, 0), Vector(-30.5, 38.1, 0)), False)
sketch14.addGeometry(Part.ArcOfCircle(Part.Circle(Vector(-30.5, 38.6, 0), Vector(0, 0, 1), 0.5), math.radians(180), math.radians(270)), False)
sketch14.addGeometry(Part.LineSegment(Vector(-31, 38.6, 0), Vector(-31, 40.6, 0)), False)
sketch14.addGeometry(Part.LineSegment(Vector(-31, 40.6, 0), Vector(-33.35, 42.95, 0)), False)
sketch14.addGeometry(Part.ArcOfCircle(Part.Circle(Vector(-33, 43.31, 0), Vector(0, 0, 1), 0.5), math.radians(180), math.radians(225)), False)
sketch14.addGeometry(Part.LineSegment(Vector(-33.5, 43.31, 0), Vector(-33.5, 62, 0)), False)
sketch14.addGeometry(Part.ArcOfCircle(Part.Circle(Vector(-33, 62, 0), Vector(0, 0, 1), 0.5), math.radians(90), math.radians(180)), False)
sketch14.addConstraint(Sketcher.Constraint("Coincident", 0, 2, 1, 1))
sketch14.addConstraint(Sketcher.Constraint("Coincident", 1, 2, 2, 1))
sketch14.addConstraint(Sketcher.Constraint("Tangent", 2, 2, 3, 2))
sketch14.addConstraint(Sketcher.Constraint("Tangent", 3, 1, 4, 1))
sketch14.addConstraint(Sketcher.Constraint("Coincident", 4, 2, 5, 1))
sketch14.addConstraint(Sketcher.Constraint("Tangent", 5, 2, 6, 2))
sketch14.addConstraint(Sketcher.Constraint("Tangent", 6, 1, 7, 1))
sketch14.addConstraint(Sketcher.Constraint("Tangent", 7, 2, 8, 2))
sketch14.addConstraint(Sketcher.Constraint("Tangent", 8, 1, 0, 1))
sketch14.addConstraint(Sketcher.Constraint("Horizontal", 0))
sketch14.addConstraint(Sketcher.Constraint("Vertical", 1))
sketch14.addConstraint(Sketcher.Constraint("Horizontal", 2))
sketch14.addConstraint(Sketcher.Constraint("Vertical", 4))
sketch14.addConstraint(Sketcher.Constraint("Vertical", 7))
sketch14.addConstraint(Sketcher.Constraint("Equal", 3, 6))
sketch14.addConstraint(Sketcher.Constraint("Equal", 6, 8))
sketch14.addConstraint(Sketcher.Constraint("Radius", 3, Q("0.5 mm")))
sketch14.addConstraint(Sketcher.Constraint("DistanceY", 4, 1, 4, 2, Q("2 mm")))
sketch14.addConstraint(Sketcher.Constraint("Angle", 5, Q("135 deg")))
sketch14.addConstraint(Sketcher.Constraint("DistanceY", 1, 2, 1, 1, Q("24.4 mm")))
sketch14.addConstraint(Sketcher.Constraint("DistanceX", 6, 3, -1, 1, Q("33 mm")))
sketch14.addConstraint(Sketcher.Constraint("DistanceY", -1, 1, 8, 3, Q("62 mm")))
sketch14.addConstraint(Sketcher.Constraint("DistanceX", 3, 1, -1, 1, Q("31 mm")))
sketch14.addConstraint(Sketcher.Constraint("DistanceX", 0, 2, 0, 1, Q("17.25 mm")))
groove8 = body.newObject("PartDesign::Groove", "Groove007")
groove8.Profile = sketch14
groove8.ReferenceAxis = (sketch14, ["V_Axis"])
groove8.Angle = 90
groove8.Midplane = True

sketch15 = body.newObject("Sketcher::SketchObject", "Sketch014")
sketch15.AttachmentSupport = (doc.getObject("YZ_Plane"), [""])
sketch15.MapMode = "FlatFace"
sketch15.AttachmentOffset = App.Placement(Vector(0, 0, -8.2), App.Rotation())
sketch15.addGeometry(Part.LineSegment(Vector(62.5, 2, 0), Vector(58.5, 2, 0)), False)
sketch15.addGeometry(Part.ArcOfCircle(Part.Circle(Vector(53.9, 0, 0), Vector(0, 0, 1), 5), math.radians(24), math.radians(336)), False)
sketch15.addGeometry(Part.LineSegment(Vector(58.5, -2, 0), Vector(62.5, -2, 0)), False)
sketch15.addGeometry(Part.LineSegment(Vector(62.5, -2, 0), Vector(62.5, 2, 0)), False)
sketch15.addConstraint(Sketcher.Constraint("Coincident", 0, 2, 1, 1))
sketch15.addConstraint(Sketcher.Constraint("Coincident", 1, 2, 2, 1))
sketch15.addConstraint(Sketcher.Constraint("Coincident", 2, 2, 3, 1))
sketch15.addConstraint(Sketcher.Constraint("Coincident", 3, 2, 0, 1))
sketch15.addConstraint(Sketcher.Constraint("Horizontal", 0))
sketch15.addConstraint(Sketcher.Constraint("Horizontal", 2))
sketch15.addConstraint(Sketcher.Constraint("Vertical", 3))
sketch15.addConstraint(Sketcher.Constraint("Symmetric", 0, 2, 1, 2, -1))
sketch15.addConstraint(Sketcher.Constraint("Equal", 2, 3))
sketch15.addConstraint(Sketcher.Constraint("Radius", 1, Q("5 mm")))
sketch15.addConstraint(Sketcher.Constraint("DistanceX", 0, 2, 0, 1, Q("4 mm")))
sketch15.addConstraint(Sketcher.Constraint("DistanceX", -1, 1, 0, 2, Q("58.5 mm")))
pocket3 = body.newObject("PartDesign::Pocket", "Pocket002")
pocket3.Profile = sketch15
pocket3.Length = 7.5

sketch16 = body.newObject("Sketcher::SketchObject", "Sketch015")
sketch16.AttachmentSupport = (doc.getObject("YZ_Plane"), [""])
sketch16.MapMode = "FlatFace"
sketch16.AttachmentOffset = App.Placement(Vector(0, 0, 8.2), App.Rotation())
sketch16.addGeometry(Part.LineSegment(Vector(62.5, 2, 0), Vector(58.5, 2, 0)), False)
sketch16.addGeometry(Part.ArcOfCircle(Part.Circle(Vector(53.9, 0, 0), Vector(0, 0, 1), 5), math.radians(24), math.radians(336)), False)
sketch16.addGeometry(Part.LineSegment(Vector(58.5, -2, 0), Vector(62.5, -2, 0)), False)
sketch16.addGeometry(Part.LineSegment(Vector(62.5, -2, 0), Vector(62.5, 2, 0)), False)
sketch16.addConstraint(Sketcher.Constraint("Coincident", 0, 2, 1, 1))
sketch16.addConstraint(Sketcher.Constraint("Coincident", 1, 2, 2, 1))
sketch16.addConstraint(Sketcher.Constraint("Coincident", 2, 2, 3, 1))
sketch16.addConstraint(Sketcher.Constraint("Coincident", 3, 2, 0, 1))
sketch16.addConstraint(Sketcher.Constraint("Horizontal", 0))
sketch16.addConstraint(Sketcher.Constraint("Horizontal", 2))
sketch16.addConstraint(Sketcher.Constraint("Vertical", 3))
sketch16.addConstraint(Sketcher.Constraint("Symmetric", 0, 2, 1, 2, -1))
sketch16.addConstraint(Sketcher.Constraint("Equal", 2, 3))
sketch16.addConstraint(Sketcher.Constraint("Radius", 1, Q("5 mm")))
sketch16.addConstraint(Sketcher.Constraint("DistanceX", 0, 2, 0, 1, Q("4 mm")))
sketch16.addConstraint(Sketcher.Constraint("DistanceX", -1, 1, 0, 2, Q("58.5 mm")))
pocket4 = body.newObject("PartDesign::Pocket", "Pocket003")
pocket4.Profile = sketch16
pocket4.Length = 7.5
pocket4.Reversed = True

doc.recompute()
